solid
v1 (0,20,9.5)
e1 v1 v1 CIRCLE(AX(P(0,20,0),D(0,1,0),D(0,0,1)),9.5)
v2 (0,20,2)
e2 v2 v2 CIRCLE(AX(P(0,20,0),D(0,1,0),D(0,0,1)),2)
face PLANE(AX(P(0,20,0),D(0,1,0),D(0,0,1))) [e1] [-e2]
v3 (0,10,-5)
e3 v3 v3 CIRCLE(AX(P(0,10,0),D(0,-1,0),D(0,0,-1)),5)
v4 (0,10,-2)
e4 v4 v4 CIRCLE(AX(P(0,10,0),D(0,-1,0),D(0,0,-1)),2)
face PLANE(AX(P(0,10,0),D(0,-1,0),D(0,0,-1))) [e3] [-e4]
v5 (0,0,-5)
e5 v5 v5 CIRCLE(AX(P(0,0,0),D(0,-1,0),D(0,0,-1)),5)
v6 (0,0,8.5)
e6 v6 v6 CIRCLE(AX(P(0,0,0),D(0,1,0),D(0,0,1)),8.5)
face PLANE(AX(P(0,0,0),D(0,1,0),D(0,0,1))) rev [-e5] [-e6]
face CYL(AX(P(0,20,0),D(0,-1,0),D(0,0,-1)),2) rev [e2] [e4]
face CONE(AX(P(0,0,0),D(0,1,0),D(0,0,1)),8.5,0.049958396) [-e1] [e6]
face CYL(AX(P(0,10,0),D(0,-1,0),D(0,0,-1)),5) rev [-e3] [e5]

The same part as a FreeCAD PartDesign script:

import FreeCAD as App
import Part
import Sketcher

V = App.Vector
Q = App.Units.Quantity

doc = App.newDocument("Part")
body = doc.addObject("PartDesign::Body", "Body")

# Sketch on XZ plane
sketch1 = body.newObject("Sketcher::SketchObject", "Sketch")
sketch1.AttachmentSupport = (doc.getObject("XZ_Plane"), [""])
sketch1.MapMode = "FlatFace"
sketch1.addGeometry([
    Part.Circle(V(0, 0, 0), V(0, 0, 1), 9.5),
    Part.Circle(V(0, 0, 0), V(0, 0, 1), 2),
], False)
sketch1.addConstraint([
    Sketcher.Constraint("Coincident", 0, 3, -1, 1),
    Sketcher.Constraint("Coincident", 1, 3, -1, 1),
    Sketcher.Constraint("Diameter", 0, Q("19 mm")),
    Sketcher.Constraint("Diameter", 1, Q("4 mm")),
])
pad1 = body.newObject("PartDesign::Pad", "Pad")
pad1.Profile = sketch1
pad1.Length = 20
pad1.Reversed = True

# Sketch on XY plane
sketch2 = body.newObject("Sketcher::SketchObject", "Sketch001")
sketch2.AttachmentSupport = (doc.getObject("XY_Plane"), [""])
sketch2.MapMode = "FlatFace"
sketch2.addGeometry([
    Part.LineSegment(V(-8.5, 0, 0), V(-9.5, 20, 0)),
    Part.LineSegment(V(-9.5, 20, 0), V(-9.5, 0, 0)),
    Part.LineSegment(V(-9.5, 0, 0), V(-8.5, 0, 0)),
], False)
sketch2.addConstraint([
    Sketcher.Constraint("Coincident", 0, 2, 1, 1),
    Sketcher.Constraint("Coincident", 1, 2, 2, 1),
    Sketcher.Constraint("Coincident", 2, 2, 0, 1),
    Sketcher.Constraint("Vertical", 1),
    Sketcher.Constraint("Horizontal", 2),
    Sketcher.Constraint("PointOnObject", 1, 2, -1),
    Sketcher.Constraint("DistanceX", 2, 1, 2, 2, Q("1 mm")),
    Sketcher.Constraint("DistanceY", 1, 2, 1, 1, Q("20 mm")),
    Sketcher.Constraint("DistanceX", 0, 2, -1, 1, Q("9.5 mm")),
])
groove = body.newObject("PartDesign::Groove", "Groove")
groove.Profile = sketch2
groove.ReferenceAxis = (sketch2, ["V_Axis"])
groove.Angle = 360

# Sketch on XZ plane
sketch3 = body.newObject("Sketcher::SketchObject", "Sketch002")
sketch3.AttachmentSupport = (doc.getObject("XZ_Plane"), [""])
sketch3.MapMode = "FlatFace"
sketch3.addGeometry(Part.Circle(V(0, 0, 0), V(0, 0, 1), 5), False)
sketch3.addConstraint([
    Sketcher.Constraint("Coincident", 0, 3, -1, 1),
    Sketcher.Constraint("Diameter", 0, Q("10 mm")),
])
pocket1 = body.newObject("PartDesign::Pocket", "Pocket")
pocket1.Profile = sketch3
pocket1.Length = 10

doc.recompute()
